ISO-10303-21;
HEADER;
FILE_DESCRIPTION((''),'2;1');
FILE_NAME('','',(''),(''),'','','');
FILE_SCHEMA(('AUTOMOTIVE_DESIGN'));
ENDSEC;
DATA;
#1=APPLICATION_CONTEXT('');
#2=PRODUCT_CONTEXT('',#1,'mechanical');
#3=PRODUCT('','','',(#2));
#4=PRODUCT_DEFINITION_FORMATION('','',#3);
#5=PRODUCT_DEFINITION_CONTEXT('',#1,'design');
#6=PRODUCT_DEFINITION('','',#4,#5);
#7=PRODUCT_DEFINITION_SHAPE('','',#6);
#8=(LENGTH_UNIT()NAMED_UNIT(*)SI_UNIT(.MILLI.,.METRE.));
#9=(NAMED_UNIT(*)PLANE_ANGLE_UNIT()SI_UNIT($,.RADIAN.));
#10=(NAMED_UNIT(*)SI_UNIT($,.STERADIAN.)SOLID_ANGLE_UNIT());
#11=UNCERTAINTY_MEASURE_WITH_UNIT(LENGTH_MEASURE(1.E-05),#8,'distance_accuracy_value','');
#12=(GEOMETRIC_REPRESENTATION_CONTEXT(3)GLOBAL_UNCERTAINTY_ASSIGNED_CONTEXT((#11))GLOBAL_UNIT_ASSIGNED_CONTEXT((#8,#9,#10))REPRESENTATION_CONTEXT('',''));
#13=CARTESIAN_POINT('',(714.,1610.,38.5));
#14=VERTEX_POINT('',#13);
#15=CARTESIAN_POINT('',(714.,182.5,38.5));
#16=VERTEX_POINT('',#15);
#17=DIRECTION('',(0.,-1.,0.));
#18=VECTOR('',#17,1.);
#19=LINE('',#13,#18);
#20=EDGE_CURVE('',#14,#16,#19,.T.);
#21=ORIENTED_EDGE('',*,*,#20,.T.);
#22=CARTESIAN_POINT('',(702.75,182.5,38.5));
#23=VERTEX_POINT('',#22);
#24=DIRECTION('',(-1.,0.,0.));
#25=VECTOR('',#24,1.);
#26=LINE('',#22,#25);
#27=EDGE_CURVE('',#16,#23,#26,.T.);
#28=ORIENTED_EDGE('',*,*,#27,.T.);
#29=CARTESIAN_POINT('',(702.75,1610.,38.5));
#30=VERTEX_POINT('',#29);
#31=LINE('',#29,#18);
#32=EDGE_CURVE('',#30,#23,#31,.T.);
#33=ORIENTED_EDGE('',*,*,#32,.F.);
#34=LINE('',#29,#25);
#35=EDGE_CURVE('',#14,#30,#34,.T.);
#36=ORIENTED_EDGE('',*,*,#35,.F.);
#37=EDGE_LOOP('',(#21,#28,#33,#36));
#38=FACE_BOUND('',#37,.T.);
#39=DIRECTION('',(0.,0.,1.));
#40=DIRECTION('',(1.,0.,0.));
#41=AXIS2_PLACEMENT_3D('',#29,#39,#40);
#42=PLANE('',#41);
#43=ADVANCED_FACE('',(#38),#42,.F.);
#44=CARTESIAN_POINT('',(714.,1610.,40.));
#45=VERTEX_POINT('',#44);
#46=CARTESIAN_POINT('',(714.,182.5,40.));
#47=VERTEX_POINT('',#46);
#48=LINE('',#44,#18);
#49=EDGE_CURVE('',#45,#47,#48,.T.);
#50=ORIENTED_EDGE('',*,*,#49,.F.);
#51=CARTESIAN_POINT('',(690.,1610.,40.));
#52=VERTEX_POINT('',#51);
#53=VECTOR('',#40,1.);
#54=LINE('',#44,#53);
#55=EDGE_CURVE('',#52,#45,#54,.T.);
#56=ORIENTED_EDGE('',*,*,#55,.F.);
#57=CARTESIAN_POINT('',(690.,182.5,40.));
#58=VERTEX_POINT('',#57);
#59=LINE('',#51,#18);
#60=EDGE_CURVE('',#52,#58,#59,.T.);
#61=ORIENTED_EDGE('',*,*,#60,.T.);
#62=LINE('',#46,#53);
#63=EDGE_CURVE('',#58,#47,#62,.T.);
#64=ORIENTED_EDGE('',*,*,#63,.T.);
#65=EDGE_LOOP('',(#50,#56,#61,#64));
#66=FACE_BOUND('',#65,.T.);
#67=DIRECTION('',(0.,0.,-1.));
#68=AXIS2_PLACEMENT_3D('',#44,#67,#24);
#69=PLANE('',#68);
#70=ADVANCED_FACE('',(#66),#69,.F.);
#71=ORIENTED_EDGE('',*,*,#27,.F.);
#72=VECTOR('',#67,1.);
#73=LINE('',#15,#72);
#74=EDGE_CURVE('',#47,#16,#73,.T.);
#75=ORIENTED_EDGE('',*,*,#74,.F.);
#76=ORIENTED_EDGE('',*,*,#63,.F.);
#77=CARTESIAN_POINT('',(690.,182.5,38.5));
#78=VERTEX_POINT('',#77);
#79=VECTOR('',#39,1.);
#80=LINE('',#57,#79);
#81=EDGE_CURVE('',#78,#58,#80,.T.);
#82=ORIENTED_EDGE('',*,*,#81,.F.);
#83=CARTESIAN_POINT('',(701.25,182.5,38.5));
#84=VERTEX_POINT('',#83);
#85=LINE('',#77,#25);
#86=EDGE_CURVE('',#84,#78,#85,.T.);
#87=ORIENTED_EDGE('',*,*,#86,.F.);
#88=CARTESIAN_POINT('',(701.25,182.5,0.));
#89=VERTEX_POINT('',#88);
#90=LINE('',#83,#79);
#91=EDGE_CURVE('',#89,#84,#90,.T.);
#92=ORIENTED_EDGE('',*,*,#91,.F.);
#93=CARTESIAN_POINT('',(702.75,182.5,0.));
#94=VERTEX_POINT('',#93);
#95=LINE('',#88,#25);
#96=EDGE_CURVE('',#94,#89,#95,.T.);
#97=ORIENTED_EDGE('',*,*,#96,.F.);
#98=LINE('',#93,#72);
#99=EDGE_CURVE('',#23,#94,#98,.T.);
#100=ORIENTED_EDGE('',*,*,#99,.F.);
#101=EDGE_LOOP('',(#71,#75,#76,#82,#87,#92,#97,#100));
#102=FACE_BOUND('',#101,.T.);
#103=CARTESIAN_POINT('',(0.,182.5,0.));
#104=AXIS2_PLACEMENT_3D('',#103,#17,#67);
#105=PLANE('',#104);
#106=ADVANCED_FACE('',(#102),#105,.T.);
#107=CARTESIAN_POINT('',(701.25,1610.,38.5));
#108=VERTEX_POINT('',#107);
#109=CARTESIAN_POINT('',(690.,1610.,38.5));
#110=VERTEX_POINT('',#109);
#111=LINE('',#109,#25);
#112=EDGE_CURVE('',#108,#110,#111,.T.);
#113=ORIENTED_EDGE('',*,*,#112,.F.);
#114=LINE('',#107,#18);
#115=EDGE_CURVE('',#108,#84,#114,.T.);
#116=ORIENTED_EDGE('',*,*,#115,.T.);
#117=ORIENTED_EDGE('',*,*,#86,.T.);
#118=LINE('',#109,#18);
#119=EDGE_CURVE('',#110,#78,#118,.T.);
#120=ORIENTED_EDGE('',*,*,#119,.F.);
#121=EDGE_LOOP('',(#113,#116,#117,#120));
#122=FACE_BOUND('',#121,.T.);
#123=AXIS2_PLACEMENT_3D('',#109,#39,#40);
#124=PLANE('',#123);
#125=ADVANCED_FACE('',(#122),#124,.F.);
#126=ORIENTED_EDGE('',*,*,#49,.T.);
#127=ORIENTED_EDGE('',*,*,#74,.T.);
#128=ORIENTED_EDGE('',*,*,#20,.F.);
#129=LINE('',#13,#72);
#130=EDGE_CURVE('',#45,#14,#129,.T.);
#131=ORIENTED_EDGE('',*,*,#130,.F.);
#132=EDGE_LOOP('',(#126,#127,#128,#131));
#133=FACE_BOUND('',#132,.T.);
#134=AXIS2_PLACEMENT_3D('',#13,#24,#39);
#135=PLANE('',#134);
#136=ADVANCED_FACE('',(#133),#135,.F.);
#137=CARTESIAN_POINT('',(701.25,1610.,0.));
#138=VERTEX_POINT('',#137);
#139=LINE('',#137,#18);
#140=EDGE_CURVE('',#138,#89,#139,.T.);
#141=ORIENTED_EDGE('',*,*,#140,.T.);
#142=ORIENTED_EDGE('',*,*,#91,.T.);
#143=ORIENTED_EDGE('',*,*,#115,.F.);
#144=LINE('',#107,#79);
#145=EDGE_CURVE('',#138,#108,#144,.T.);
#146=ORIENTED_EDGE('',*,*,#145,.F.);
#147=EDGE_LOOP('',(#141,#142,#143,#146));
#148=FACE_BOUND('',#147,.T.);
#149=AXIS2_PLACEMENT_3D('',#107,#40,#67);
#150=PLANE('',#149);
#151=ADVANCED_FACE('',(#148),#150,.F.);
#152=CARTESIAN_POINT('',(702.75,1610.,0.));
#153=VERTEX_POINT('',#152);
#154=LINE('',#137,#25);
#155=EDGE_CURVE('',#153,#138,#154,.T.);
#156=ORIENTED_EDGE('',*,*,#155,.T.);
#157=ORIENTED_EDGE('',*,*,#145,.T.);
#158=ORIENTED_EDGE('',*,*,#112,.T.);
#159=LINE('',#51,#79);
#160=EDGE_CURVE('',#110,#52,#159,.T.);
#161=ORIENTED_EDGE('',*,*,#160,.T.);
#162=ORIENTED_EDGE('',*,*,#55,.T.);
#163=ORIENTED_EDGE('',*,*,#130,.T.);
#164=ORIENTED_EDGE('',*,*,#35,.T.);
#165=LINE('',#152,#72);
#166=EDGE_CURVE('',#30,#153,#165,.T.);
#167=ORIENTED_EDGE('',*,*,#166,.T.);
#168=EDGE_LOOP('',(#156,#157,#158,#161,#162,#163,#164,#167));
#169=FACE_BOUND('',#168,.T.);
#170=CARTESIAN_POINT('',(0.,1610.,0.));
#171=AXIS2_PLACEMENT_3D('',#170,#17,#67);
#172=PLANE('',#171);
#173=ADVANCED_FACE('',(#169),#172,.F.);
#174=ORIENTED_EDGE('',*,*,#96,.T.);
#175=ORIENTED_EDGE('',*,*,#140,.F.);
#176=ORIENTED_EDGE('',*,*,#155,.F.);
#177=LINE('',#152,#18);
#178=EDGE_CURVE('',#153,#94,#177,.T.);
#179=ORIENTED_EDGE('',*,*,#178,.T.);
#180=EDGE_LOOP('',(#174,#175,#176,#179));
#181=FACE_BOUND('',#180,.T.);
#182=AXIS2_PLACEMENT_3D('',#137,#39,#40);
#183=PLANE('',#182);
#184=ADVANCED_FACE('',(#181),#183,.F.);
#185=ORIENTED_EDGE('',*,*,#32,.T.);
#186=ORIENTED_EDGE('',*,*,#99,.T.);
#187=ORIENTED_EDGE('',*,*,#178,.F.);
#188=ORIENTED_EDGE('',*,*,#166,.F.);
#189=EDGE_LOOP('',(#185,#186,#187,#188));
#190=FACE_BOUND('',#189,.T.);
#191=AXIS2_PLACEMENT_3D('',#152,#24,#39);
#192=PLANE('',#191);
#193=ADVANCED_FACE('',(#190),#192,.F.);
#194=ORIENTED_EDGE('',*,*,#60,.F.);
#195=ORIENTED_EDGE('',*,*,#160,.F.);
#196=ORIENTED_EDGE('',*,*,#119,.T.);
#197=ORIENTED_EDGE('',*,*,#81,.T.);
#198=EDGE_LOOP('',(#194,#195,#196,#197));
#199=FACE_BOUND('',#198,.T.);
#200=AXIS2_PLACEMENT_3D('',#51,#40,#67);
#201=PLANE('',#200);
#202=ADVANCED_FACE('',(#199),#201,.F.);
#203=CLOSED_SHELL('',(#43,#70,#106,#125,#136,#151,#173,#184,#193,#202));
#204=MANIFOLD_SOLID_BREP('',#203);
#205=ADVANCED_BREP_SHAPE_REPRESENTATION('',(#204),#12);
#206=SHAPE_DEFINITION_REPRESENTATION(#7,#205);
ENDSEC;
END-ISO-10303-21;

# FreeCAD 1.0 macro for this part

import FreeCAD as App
import Part
import Sketcher
from FreeCAD import Vector
Q = App.Units.Quantity


def add_polygon(sketch, points):
    """Adds a closed chain of lines whose ends are joined by coincident constraints."""
    first, n = sketch.GeometryCount, len(points)
    for a, b in zip(points, points[1:] + points[:1]):
        sketch.addGeometry(Part.LineSegment(App.Vector(*a, 0), App.Vector(*b, 0)), False)
    for i in range(n):
        sketch.addConstraint(Sketcher.Constraint("Coincident", first + i, 2, first + (i + 1) % n, 1))

doc = App.newDocument("Part")
body = doc.addObject("PartDesign::Body", "Body")

sketch1 = doc.addObject("Sketcher::SketchObject", "Sketch")
body.addObject(sketch1)
sketch1.AttachmentSupport = (doc.XZ_Plane, [""])
sketch1.MapMode = "FlatFace"
sketch1.AttachmentOffset = App.Placement(Vector(0, 0, -182.5), App.Rotation())
add_polygon(sketch1, [(690, 38.5), (690, 40), (714, 40), (714, 38.5), (702.8, 38.5), (702.8, 0), (701.2, 0), (701.2, 38.5)])
sketch1.addConstraint(Sketcher.Constraint("Vertical", 0))
sketch1.addConstraint(Sketcher.Constraint("Horizontal", 1))
sketch1.addConstraint(Sketcher.Constraint("Vertical", 2))
sketch1.addConstraint(Sketcher.Constraint("Horizontal", 3))
sketch1.addConstraint(Sketcher.Constraint("Vertical", 4))
sketch1.addConstraint(Sketcher.Constraint("Horizontal", 5))
sketch1.addConstraint(Sketcher.Constraint("Vertical", 6))
sketch1.addConstraint(Sketcher.Constraint("Horizontal", 7))
sketch1.addConstraint(Sketcher.Constraint("PointOnObject", 4, 2, -1))
sketch1.addConstraint(Sketcher.Constraint("Horizontal", 3, 2, 6, 2))
sketch1.addConstraint(Sketcher.Constraint("Equal", 3, 7))
sketch1.addConstraint(Sketcher.Constraint("Equal", 5, 0))
sketch1.addConstraint(Sketcher.Constraint("DistanceX", 1, 1, 1, 2, Q("24 mm")))
sketch1.addConstraint(Sketcher.Constraint("DistanceX", 5, 2, 5, 1, Q("1.5 mm")))
sketch1.addConstraint(Sketcher.Constraint("DistanceY", 4, 2, 4, 1, Q("38.5 mm")))
sketch1.addConstraint(Sketcher.Constraint("DistanceX", -1, 1, 0, 2, Q("690 mm")))
pad1 = doc.addObject("PartDesign::Pad", "Pad")
body.addObject(pad1)
pad1.Profile = sketch1
pad1.Length = 1427.5
pad1.Reversed = True

doc.recompute()
